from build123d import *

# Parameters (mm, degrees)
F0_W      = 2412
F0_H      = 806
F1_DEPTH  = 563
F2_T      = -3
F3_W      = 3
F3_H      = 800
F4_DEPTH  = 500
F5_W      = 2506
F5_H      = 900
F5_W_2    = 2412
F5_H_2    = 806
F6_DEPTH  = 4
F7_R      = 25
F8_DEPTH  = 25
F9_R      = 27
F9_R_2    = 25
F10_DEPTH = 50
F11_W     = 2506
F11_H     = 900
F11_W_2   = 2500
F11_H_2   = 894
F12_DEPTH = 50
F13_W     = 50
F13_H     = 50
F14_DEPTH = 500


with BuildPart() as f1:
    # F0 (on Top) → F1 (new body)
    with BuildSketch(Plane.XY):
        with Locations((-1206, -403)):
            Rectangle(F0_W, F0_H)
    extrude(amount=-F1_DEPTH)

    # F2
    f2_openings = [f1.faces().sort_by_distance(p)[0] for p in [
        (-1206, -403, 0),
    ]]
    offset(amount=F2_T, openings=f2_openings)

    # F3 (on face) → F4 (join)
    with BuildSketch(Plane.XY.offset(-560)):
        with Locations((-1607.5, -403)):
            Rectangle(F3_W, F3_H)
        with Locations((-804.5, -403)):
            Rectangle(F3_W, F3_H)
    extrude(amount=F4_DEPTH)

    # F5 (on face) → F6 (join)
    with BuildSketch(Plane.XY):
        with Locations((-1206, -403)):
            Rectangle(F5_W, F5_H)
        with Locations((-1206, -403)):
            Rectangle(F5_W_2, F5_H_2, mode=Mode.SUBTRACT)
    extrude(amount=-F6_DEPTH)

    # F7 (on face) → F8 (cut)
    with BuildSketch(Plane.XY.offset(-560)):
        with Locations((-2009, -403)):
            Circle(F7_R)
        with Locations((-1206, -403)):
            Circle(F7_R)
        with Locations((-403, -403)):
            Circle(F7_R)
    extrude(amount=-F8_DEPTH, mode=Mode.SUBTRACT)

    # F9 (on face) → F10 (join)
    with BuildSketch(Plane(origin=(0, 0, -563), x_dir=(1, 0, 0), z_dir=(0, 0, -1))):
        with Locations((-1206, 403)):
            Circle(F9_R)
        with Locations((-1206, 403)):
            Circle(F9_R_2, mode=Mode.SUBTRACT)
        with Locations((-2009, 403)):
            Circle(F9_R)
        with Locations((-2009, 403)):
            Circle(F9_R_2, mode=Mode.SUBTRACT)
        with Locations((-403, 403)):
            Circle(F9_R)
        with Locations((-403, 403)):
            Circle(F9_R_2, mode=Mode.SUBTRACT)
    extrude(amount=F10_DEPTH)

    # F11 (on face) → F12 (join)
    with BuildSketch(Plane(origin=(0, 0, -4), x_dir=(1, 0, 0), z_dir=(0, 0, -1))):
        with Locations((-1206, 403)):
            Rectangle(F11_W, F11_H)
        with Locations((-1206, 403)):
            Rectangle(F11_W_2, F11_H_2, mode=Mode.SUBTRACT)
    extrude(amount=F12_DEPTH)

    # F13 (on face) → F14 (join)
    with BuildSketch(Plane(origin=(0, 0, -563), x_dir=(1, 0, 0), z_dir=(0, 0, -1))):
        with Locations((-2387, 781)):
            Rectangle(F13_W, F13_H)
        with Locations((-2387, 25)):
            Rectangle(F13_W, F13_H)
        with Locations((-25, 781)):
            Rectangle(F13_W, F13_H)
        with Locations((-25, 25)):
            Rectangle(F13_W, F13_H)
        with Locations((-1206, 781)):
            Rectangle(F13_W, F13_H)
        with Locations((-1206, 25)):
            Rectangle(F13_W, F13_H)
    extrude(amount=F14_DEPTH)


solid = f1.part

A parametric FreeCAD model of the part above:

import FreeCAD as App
import Part
import Sketcher
from FreeCAD import Vector


def faces_at(feature, points):
    """Names of the faces that lie closest to the given points."""
    faces = feature.Shape.Faces
    near = lambda p: min(range(len(faces)), key=lambda i: faces[i].distToShape(Part.Vertex(*p))[0])
    return sorted({f"Face{near(p) + 1}" for p in points})


def add_polygon(sketch, points):
    """Adds a closed chain of lines whose ends are joined by coincident constraints."""
    first, n = sketch.GeometryCount, len(points)
    for a, b in zip(points, points[1:] + points[:1]):
        sketch.addGeometry(Part.LineSegment(App.Vector(*a, 0), App.Vector(*b, 0)), False)
    for i in range(n):
        sketch.addConstraint(Sketcher.Constraint("Coincident", first + i, 2, first + (i + 1) % n, 1))

doc = App.newDocument("Part")
body = doc.addObject("PartDesign::Body", "Body")

sketch1 = body.newObject("Sketcher::SketchObject", "Sketch")
sketch1.AttachmentSupport = (doc.getObject("XY_Plane"), [""])
sketch1.MapMode = "FlatFace"
add_polygon(sketch1, [(-2412, 0), (-2412, -806), (0, -806), (0, 0)])
sketch1.addConstraint([
    Sketcher.Constraint("Vertical", 0),
    Sketcher.Constraint("Horizontal", 1),
    Sketcher.Constraint("Vertical", 2),
    Sketcher.Constraint("Horizontal", 3),
    Sketcher.Constraint("Coincident", 2, 2, -1, 1),
    Sketcher.Constraint("DistanceX", 1, 1, 1, 2, 2412.0),
    Sketcher.Constraint("DistanceY", 0, 2, 0, 1, 806.0),
])
pad1 = body.newObject("PartDesign::Pad", "Pad")
pad1.Profile = sketch1
pad1.Length = 563
pad1.Reversed = True
doc.recompute()

thickness = body.newObject("PartDesign::Thickness", "Thickness")
thickness.Base = (pad1, faces_at(pad1, [(-1206, -403, 0)]))
thickness.Value = 3
thickness.Reversed = True
thickness.Join = "Arc"

sketch2 = body.newObject("Sketcher::SketchObject", "Sketch001")
sketch2.AttachmentSupport = (doc.getObject("XY_Plane"), [""])
sketch2.MapMode = "FlatFace"
sketch2.AttachmentOffset = App.Placement(Vector(0, 0, -560), App.Rotation())
add_polygon(sketch2, [(-1609, -3), (-1609, -803), (-1606, -803), (-1606, -3)])
add_polygon(sketch2, [(-806, -3), (-806, -803), (-803, -803), (-803, -3)])
sketch2.addConstraint([
    Sketcher.Constraint("Vertical", 0),
    Sketcher.Constraint("Horizontal", 1),
    Sketcher.Constraint("Vertical", 2),
    Sketcher.Constraint("Horizontal", 3),
    Sketcher.Constraint("Vertical", 4),
    Sketcher.Constraint("Horizontal", 5),
    Sketcher.Constraint("Vertical", 6),
    Sketcher.Constraint("Horizontal", 7),
    Sketcher.Constraint("Horizontal", 1, 2, 4, 2),
    Sketcher.Constraint("Horizontal", 3, 2, 6, 2),
    Sketcher.Constraint("Equal", 3, 5),
    Sketcher.Constraint("DistanceX", 1, 1, 1, 2, 3.0),
    Sketcher.Constraint("DistanceY", 0, 2, 0, 1, 800.0),
    Sketcher.Constraint("DistanceX", 0, 2, -1, 1, 1609.0),
    Sketcher.Constraint("DistanceY", 0, 2, -1, 1, 803.0),
    Sketcher.Constraint("DistanceX", 4, 2, -1, 1, 806.0),
])
pad2 = body.newObject("PartDesign::Pad", "Pad001")
pad2.Profile = sketch2
pad2.Length = 500

sketch3 = body.newObject("Sketcher::SketchObject", "Sketch002")
sketch3.AttachmentSupport = (doc.getObject("XY_Plane"), [""])
sketch3.MapMode = "FlatFace"
add_polygon(sketch3, [(-2459, 47), (-2459, -853), (47, -853), (47, 47)])
add_polygon(sketch3, [(0, -806), (-2412, -806), (-2412, 0), (0, 0)])
sketch3.addConstraint([
    Sketcher.Constraint("Vertical", 0),
    Sketcher.Constraint("Horizontal", 1),
    Sketcher.Constraint("Vertical", 2),
    Sketcher.Constraint("Horizontal", 3),
    Sketcher.Constraint("Horizontal", 4),
    Sketcher.Constraint("Vertical", 5),
    Sketcher.Constraint("Horizontal", 6),
    Sketcher.Constraint("Vertical", 7),
    Sketcher.Constraint("Coincident", 6, 2, -1, 1),
    Sketcher.Constraint("DistanceX", 1, 1, 1, 2, 2506.0),
    Sketcher.Constraint("DistanceX", 4, 2, 4, 1, 2412.0),
    Sketcher.Constraint("DistanceY", 0, 2, 0, 1, 900.0),
    Sketcher.Constraint("DistanceY", 5, 1, 5, 2, 806.0),
    Sketcher.Constraint("DistanceX", 0, 2, -1, 1, 2459.0),
    Sketcher.Constraint("DistanceY", 0, 2, -1, 1, 853.0),
])
pad3 = body.newObject("PartDesign::Pad", "Pad002")
pad3.Profile = sketch3
pad3.Length = 4
pad3.Reversed = True

sketch4 = body.newObject("Sketcher::SketchObject", "Sketch003")
sketch4.AttachmentSupport = (doc.getObject("XY_Plane"), [""])
sketch4.MapMode = "FlatFace"
sketch4.AttachmentOffset = App.Placement(Vector(0, 0, -560), App.Rotation())
sketch4.addGeometry([
    Part.Circle(Vector(-2009, -403, 0), Vector(0, 0, 1), 25),
    Part.Circle(Vector(-1206, -403, 0), Vector(0, 0, 1), 25),
    Part.Circle(Vector(-403, -403, 0), Vector(0, 0, 1), 25),
], False)
sketch4.addConstraint([
    Sketcher.Constraint("Equal", 0, 1),
    Sketcher.Constraint("Equal", 1, 2),
    Sketcher.Constraint("Horizontal", 0, 3, 1, 3),
    Sketcher.Constraint("Horizontal", 1, 3, 2, 3),
    Sketcher.Constraint("Diameter", 0, 50.0),
    Sketcher.Constraint("DistanceX", 0, 3, -1, 1, 2009.0),
    Sketcher.Constraint("DistanceY", 0, 3, -1, 1, 403.0),
    Sketcher.Constraint("DistanceX", 1, 3, -1, 1, 1206.0),
    Sketcher.Constraint("DistanceX", 2, 3, -1, 1, 403.0),
])
pocket1 = body.newObject("PartDesign::Pocket", "Pocket")
pocket1.Profile = sketch4
pocket1.Length = 25

sketch5 = body.newObject("Sketcher::SketchObject", "Sketch004")
sketch5.AttachmentSupport = (doc.getObject("XY_Plane"), [""])
sketch5.MapMode = "FlatFace"
sketch5.AttachmentOffset = App.Placement(Vector(0, 0, -563), App.Rotation())
sketch5.addGeometry([
    Part.Circle(Vector(-1206, -403, 0), Vector(0, 0, 1), 27),
    Part.Circle(Vector(-1206, -403, 0), Vector(0, 0, 1), 25),
    Part.Circle(Vector(-2009, -403, 0), Vector(0, 0, 1), 27),
    Part.Circle(Vector(-2009, -403, 0), Vector(0, 0, 1), 25),
    Part.Circle(Vector(-403, -403, 0), Vector(0, 0, 1), 27),
    Part.Circle(Vector(-403, -403, 0), Vector(0, 0, 1), 25),
], False)
sketch5.addConstraint([
    Sketcher.Constraint("Coincident", 1, 3, 0, 3),
    Sketcher.Constraint("Coincident", 3, 3, 2, 3),
    Sketcher.Constraint("Coincident", 5, 3, 4, 3),
    Sketcher.Constraint("Equal", 0, 2),
    Sketcher.Constraint("Equal", 1, 3),
    Sketcher.Constraint("Equal", 2, 4),
    Sketcher.Constraint("Equal", 3, 5),
    Sketcher.Constraint("Horizontal", 1, 3, 2, 3),
    Sketcher.Constraint("Horizontal", 3, 3, 4, 3),
    Sketcher.Constraint("Diameter", 0, 54.0),
    Sketcher.Constraint("Diameter", 1, 50.0),
    Sketcher.Constraint("DistanceX", 0, 3, -1, 1, 1206.0),
    Sketcher.Constraint("DistanceY", 0, 3, -1, 1, 403.0),
    Sketcher.Constraint("DistanceX", 2, 3, -1, 1, 2009.0),
    Sketcher.Constraint("DistanceX", 4, 3, -1, 1, 403.0),
])
pad4 = body.newObject("PartDesign::Pad", "Pad003")
pad4.Profile = sketch5
pad4.Length = 50
pad4.Reversed = True

sketch6 = body.newObject("Sketcher::SketchObject", "Sketch005")
sketch6.AttachmentSupport = (doc.getObject("XY_Plane"), [""])
sketch6.MapMode = "FlatFace"
sketch6.AttachmentOffset = App.Placement(Vector(0, 0, -4), App.Rotation())
add_polygon(sketch6, [(-2459, -853), (-2459, 47), (47, 47), (47, -853)])
add_polygon(sketch6, [(44, 44), (-2456, 44), (-2456, -850), (44, -850)])
sketch6.addConstraint([
    Sketcher.Constraint("Vertical", 0),
    Sketcher.Constraint("Horizontal", 1),
    Sketcher.Constraint("Vertical", 2),
    Sketcher.Constraint("Horizontal", 3),
    Sketcher.Constraint("Horizontal", 4),
    Sketcher.Constraint("Vertical", 5),
    Sketcher.Constraint("Horizontal", 6),
    Sketcher.Constraint("Vertical", 7),
    Sketcher.Constraint("DistanceX", 1, 1, 1, 2, 2506.0),
    Sketcher.Constraint("DistanceX", 4, 2, 4, 1, 2500.0),
    Sketcher.Constraint("DistanceY", 0, 1, 0, 2, 900.0),
    Sketcher.Constraint("DistanceY", 5, 2, 5, 1, 894.0),
    Sketcher.Constraint("DistanceX", 0, 2, -1, 1, 2459.0),
    Sketcher.Constraint("DistanceY", -1, 1, 0, 2, 47.0),
    Sketcher.Constraint("DistanceX", 4, 2, -1, 1, 2456.0),
    Sketcher.Constraint("DistanceY", -1, 1, 4, 2, 44.0),
])
pad5 = body.newObject("PartDesign::Pad", "Pad004")
pad5.Profile = sketch6
pad5.Length = 50
pad5.Reversed = True

sketch7 = body.newObject("Sketcher::SketchObject", "Sketch006")
sketch7.AttachmentSupport = (doc.getObject("XY_Plane"), [""])
sketch7.MapMode = "FlatFace"
sketch7.AttachmentOffset = App.Placement(Vector(0, 0, -563), App.Rotation())
add_polygon(sketch7, [(-2412, -806), (-2412, -756), (-2362, -756), (-2362, -806)])
add_polygon(sketch7, [(-2412, -50), (-2412, 0), (-2362, 0), (-2362, -50)])
add_polygon(sketch7, [(-50, -806), (-50, -756), (0, -756), (0, -806)])
add_polygon(sketch7, [(-50, -50), (-50, 0), (0, 0), (0, -50)])
add_polygon(sketch7, [(-1231, -806), (-1231, -756), (-1181, -756), (-1181, -806)])
add_polygon(sketch7, [(-1231, -50), (-1231, 0), (-1181, 0), (-1181, -50)])
sketch7.addConstraint([
    Sketcher.Constraint("Vertical", 0),
    Sketcher.Constraint("Horizontal", 1),
    Sketcher.Constraint("Vertical", 2),
    Sketcher.Constraint("Horizontal", 3),
    Sketcher.Constraint("Vertical", 4),
    Sketcher.Constraint("Horizontal", 5),
    Sketcher.Constraint("Vertical", 6),
    Sketcher.Constraint("Horizontal", 7),
    Sketcher.Constraint("Vertical", 8),
    Sketcher.Constraint("Horizontal", 9),
    Sketcher.Constraint("Vertical", 10),
    Sketcher.Constraint("Horizontal", 11),
    Sketcher.Constraint("Vertical", 12),
    Sketcher.Constraint("Horizontal", 13),
    Sketcher.Constraint("Vertical", 14),
    Sketcher.Constraint("Horizontal", 15),
    Sketcher.Constraint("Vertical", 16),
    Sketcher.Constraint("Horizontal", 17),
    Sketcher.Constraint("Vertical", 18),
    Sketcher.Constraint("Horizontal", 19),
    Sketcher.Constraint("Vertical", 20),
    Sketcher.Constraint("Horizontal", 21),
    Sketcher.Constraint("Vertical", 22),
    Sketcher.Constraint("Horizontal", 23),
    Sketcher.Constraint("Coincident", 13, 2, -1, 1),
    Sketcher.Constraint("PointOnObject", 4, 2, -1),
    Sketcher.Constraint("PointOnObject", 9, 2, -2),
    Sketcher.Constraint("PointOnObject", 20, 2, -1),
    Sketcher.Constraint("Horizontal", 1, 2, 8, 2),
    Sketcher.Constraint("Horizontal", 3, 2, 10, 2),
    Sketcher.Constraint("Horizontal", 7, 2, 14, 2),
    Sketcher.Constraint("Horizontal", 9, 2, 16, 2),
    Sketcher.Constraint("Horizontal", 11, 2, 18, 2),
    Sketcher.Constraint("Horizontal", 15, 2, 22, 2),
    Sketcher.Constraint("Vertical", 3, 2, 4, 2),
    Sketcher.Constraint("Vertical", 2, 2, 5, 2),
    Sketcher.Constraint("Vertical", 11, 2, 12, 2),
    Sketcher.Constraint("Vertical", 19, 2, 20, 2),
    Sketcher.Constraint("Vertical", 18, 2, 21, 2),
    Sketcher.Constraint("Equal", 7, 9),
    Sketcher.Constraint("Equal", 15, 17),
    Sketcher.Constraint("Equal", 23, 0),
    Sketcher.Constraint("Equal", 2, 4),
    Sketcher.Constraint("DistanceX", 1, 1, 1, 2, 50.0),
    Sketcher.Constraint("DistanceX", 0, 2, -1, 1, 2412.0),
    Sketcher.Constraint("DistanceY", 0, 2, -1, 1, 756.0),
    Sketcher.Constraint("DistanceX", 16, 2, -1, 1, 1231.0),
])
pad6 = body.newObject("PartDesign::Pad", "Pad005")
pad6.Profile = sketch7
pad6.Length = 500
pad6.Reversed = True

doc.recompute()
